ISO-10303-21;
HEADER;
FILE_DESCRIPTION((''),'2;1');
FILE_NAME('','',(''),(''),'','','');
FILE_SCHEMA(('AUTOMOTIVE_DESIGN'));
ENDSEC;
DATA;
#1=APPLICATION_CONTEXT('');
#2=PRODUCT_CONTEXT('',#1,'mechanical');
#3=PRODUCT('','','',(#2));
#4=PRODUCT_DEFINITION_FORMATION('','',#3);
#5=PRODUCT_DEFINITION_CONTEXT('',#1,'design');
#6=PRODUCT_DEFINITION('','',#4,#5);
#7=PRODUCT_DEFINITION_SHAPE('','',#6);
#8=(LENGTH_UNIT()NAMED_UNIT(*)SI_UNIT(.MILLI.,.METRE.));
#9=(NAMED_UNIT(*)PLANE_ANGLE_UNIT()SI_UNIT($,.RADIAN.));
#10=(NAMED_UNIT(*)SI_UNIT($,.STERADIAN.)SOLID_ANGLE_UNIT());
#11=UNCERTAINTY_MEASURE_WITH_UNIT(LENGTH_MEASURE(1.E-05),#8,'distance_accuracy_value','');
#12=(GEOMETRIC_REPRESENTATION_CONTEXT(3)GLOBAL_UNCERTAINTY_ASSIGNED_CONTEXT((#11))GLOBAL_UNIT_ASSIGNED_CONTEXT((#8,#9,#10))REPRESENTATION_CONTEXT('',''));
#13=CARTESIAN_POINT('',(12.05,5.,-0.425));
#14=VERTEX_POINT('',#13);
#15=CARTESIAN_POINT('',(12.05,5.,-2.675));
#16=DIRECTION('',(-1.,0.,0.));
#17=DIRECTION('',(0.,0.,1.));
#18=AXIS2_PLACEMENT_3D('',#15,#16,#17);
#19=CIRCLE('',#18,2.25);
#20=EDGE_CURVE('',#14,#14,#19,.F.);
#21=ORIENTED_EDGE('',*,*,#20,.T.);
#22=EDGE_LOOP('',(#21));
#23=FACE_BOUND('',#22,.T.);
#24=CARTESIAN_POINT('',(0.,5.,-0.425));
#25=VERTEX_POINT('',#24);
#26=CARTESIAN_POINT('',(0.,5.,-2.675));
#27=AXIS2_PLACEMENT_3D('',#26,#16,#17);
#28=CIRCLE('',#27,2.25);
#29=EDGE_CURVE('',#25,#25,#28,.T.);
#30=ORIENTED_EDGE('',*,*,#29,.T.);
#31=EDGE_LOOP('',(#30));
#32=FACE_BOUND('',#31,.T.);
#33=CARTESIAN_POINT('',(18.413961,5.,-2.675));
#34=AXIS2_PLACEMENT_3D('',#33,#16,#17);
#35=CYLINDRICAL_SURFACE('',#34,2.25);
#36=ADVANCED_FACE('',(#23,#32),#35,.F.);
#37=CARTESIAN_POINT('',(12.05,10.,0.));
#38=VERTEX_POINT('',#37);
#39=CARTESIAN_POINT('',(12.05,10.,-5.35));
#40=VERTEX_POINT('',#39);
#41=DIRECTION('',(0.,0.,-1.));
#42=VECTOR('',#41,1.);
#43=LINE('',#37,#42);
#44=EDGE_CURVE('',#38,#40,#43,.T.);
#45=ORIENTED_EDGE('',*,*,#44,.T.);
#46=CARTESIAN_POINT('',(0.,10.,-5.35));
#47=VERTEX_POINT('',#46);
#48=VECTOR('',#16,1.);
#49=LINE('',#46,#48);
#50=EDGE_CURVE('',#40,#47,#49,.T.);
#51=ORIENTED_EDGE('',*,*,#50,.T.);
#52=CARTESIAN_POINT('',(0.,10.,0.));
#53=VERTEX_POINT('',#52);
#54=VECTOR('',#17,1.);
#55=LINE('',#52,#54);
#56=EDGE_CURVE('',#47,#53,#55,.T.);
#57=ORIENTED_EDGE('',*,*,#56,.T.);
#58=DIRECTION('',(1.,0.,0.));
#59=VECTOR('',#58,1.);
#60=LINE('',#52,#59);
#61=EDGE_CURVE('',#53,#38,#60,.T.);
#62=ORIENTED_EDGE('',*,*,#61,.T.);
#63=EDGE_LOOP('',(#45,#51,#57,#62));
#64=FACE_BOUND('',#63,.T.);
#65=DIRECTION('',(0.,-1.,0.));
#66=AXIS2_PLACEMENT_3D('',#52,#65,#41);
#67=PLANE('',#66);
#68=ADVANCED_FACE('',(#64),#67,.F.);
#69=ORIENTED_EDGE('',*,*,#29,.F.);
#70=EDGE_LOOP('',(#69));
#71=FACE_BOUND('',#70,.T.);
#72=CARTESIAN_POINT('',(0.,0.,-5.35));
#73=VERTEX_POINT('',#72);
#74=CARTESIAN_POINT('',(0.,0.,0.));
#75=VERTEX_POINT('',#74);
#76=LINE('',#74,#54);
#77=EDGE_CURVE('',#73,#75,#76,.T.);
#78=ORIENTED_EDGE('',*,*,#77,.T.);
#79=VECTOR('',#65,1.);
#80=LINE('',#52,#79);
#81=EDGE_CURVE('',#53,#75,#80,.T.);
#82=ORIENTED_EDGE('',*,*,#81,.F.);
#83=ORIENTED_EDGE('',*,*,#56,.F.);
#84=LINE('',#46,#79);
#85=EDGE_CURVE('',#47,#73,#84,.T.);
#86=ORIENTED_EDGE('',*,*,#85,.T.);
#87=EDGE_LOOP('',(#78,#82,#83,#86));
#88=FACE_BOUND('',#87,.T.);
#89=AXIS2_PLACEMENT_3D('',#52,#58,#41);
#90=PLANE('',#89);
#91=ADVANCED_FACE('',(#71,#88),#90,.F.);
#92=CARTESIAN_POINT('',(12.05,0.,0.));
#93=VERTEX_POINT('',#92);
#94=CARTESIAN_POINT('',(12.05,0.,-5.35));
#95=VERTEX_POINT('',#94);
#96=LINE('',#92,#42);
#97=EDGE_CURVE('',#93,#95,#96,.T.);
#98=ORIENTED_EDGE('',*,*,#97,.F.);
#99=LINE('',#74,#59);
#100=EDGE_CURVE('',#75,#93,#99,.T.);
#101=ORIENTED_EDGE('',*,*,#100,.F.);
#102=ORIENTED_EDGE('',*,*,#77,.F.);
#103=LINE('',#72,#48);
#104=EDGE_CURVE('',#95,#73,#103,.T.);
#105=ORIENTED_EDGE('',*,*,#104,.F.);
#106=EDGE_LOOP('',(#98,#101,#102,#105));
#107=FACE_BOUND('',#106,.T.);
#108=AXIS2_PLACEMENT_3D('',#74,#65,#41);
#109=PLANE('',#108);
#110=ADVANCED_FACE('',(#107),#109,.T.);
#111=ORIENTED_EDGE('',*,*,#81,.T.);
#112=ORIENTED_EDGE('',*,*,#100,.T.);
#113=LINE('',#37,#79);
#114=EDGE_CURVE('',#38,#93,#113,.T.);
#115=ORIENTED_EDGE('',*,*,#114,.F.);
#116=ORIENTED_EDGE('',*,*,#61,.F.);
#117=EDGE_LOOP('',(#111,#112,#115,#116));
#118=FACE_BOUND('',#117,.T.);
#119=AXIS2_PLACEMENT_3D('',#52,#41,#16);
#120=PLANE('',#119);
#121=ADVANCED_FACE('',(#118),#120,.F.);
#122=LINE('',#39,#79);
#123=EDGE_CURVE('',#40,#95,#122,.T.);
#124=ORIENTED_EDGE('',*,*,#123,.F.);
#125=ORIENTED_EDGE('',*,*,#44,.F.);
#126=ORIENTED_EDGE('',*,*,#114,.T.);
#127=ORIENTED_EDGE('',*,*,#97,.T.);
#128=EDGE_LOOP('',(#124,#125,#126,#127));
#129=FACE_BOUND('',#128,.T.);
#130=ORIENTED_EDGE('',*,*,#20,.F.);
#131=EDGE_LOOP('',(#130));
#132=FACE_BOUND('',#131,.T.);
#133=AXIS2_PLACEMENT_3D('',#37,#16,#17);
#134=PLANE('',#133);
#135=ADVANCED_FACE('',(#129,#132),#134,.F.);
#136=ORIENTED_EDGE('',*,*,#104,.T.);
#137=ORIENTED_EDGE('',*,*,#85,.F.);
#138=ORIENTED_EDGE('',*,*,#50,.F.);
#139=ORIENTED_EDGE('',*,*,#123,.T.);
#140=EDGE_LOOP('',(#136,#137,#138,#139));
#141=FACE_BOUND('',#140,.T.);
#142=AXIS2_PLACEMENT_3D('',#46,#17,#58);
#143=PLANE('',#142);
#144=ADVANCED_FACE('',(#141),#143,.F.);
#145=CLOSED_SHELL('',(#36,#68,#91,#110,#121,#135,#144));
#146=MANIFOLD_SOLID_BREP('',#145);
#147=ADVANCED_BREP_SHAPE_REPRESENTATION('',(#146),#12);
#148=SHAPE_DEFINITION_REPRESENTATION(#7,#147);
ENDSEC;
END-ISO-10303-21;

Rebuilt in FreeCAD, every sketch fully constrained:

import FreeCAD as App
import Part
import Sketcher
Q = App.Units.Quantity


def add_polygon(sketch, points):
    """Adds a closed chain of lines whose ends are joined by coincident constraints."""
    first, n = sketch.GeometryCount, len(points)
    for a, b in zip(points, points[1:] + points[:1]):
        sketch.addGeometry(Part.LineSegment(App.Vector(*a, 0), App.Vector(*b, 0)), False)
    for i in range(n):
        sketch.addConstraint(Sketcher.Constraint("Coincident", first + i, 2, first + (i + 1) % n, 1))

doc = App.newDocument("Part")
body = doc.addObject("PartDesign::Body", "Body")

# Sketch on XZ plane
sketch1 = body.newObject("Sketcher::SketchObject", "Sketch")
sketch1.AttachmentSupport = (doc.getObject("XZ_Plane"), [""])
sketch1.MapMode = "FlatFace"
add_polygon(sketch1, [(0, -5.35), (0, 0), (12.05, 0), (12.05, -5.35)])  # lines 0-3
sketch1.addConstraint(Sketcher.Constraint("Vertical", 0))
sketch1.addConstraint(Sketcher.Constraint("Horizontal", 1))
sketch1.addConstraint(Sketcher.Constraint("Vertical", 2))
sketch1.addConstraint(Sketcher.Constraint("Horizontal", 3))
sketch1.addConstraint(Sketcher.Constraint("Coincident", 0, 2, -1, 1))
sketch1.addConstraint(Sketcher.Constraint("DistanceX", 1, 1, 1, 2, Q("12.05 mm")))
sketch1.addConstraint(Sketcher.Constraint("DistanceY", 0, 1, 0, 2, Q("5.35 mm")))
pad1 = body.newObject("PartDesign::Pad", "Pad")
pad1.Profile = sketch1
pad1.Length = 10
pad1.Reversed = True

# Sketch on YZ plane
sketch2 = body.newObject("Sketcher::SketchObject", "Sketch001")
sketch2.AttachmentSupport = (doc.getObject("YZ_Plane"), [""])
sketch2.MapMode = "FlatFace"
sketch2.addGeometry(Part.Circle(App.Vector(5, -2.675, 0), App.Vector(0, 0, 1), 2.25), False)
sketch2.addConstraint(Sketcher.Constraint("Diameter", 0, Q("4.5 mm")))
sketch2.addConstraint(Sketcher.Constraint("DistanceX", -1, 1, 0, 3, Q("5 mm")))
sketch2.addConstraint(Sketcher.Constraint("DistanceY", 0, 3, -1, 1, Q("2.675 mm")))
pocket1 = body.newObject("PartDesign::Pocket", "Pocket")
pocket1.Profile = sketch2
pocket1.Length = 12.05
pocket1.Reversed = True

doc.recompute()
